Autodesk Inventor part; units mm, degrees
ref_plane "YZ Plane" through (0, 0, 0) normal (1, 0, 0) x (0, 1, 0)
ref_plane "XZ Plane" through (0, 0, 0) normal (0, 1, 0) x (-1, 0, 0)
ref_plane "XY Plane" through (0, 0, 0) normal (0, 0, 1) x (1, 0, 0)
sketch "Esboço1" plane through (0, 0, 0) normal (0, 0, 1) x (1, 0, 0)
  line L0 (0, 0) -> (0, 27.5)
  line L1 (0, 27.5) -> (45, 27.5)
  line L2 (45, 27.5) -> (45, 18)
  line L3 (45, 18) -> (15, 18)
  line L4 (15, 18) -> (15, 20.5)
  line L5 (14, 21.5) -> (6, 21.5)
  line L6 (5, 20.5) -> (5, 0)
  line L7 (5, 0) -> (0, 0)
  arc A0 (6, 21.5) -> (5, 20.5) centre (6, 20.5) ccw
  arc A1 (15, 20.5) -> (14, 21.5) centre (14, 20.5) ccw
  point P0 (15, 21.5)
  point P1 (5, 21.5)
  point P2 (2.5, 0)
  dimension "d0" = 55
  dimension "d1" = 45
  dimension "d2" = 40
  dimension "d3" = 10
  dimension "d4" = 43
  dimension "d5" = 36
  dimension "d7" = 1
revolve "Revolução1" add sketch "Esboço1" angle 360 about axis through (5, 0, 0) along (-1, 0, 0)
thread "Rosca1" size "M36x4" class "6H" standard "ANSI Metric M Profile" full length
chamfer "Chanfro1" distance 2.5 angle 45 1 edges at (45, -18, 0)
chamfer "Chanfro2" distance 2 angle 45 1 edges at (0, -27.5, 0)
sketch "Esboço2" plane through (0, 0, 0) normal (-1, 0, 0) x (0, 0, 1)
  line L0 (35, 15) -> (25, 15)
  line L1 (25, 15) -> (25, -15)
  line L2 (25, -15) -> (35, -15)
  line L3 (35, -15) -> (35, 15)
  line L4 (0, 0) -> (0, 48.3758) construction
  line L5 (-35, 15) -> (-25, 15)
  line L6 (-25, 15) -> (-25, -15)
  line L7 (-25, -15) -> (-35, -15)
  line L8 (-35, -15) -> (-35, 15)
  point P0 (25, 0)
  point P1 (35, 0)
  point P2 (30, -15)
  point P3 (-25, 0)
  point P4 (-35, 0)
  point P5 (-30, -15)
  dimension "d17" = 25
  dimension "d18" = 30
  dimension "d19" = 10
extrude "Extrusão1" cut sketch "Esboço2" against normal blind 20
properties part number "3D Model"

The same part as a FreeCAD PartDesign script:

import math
import FreeCAD as App
import Part
import Sketcher
Q = App.Units.Quantity


def edges_at(feature, points):
    """Names of the edges that pass closest to the given points."""
    edges = feature.Shape.Edges
    near = lambda p: min(range(len(edges)), key=lambda i: edges[i].distToShape(Part.Vertex(*p))[0])
    return sorted({f"Edge{near(p) + 1}" for p in points})

doc = App.newDocument("Part")
body = doc.addObject("PartDesign::Body", "Body")

# Sketch on XY plane
sketch1 = doc.addObject("Sketcher::SketchObject", "Sketch")
body.addObject(sketch1)
sketch1.AttachmentSupport = (doc.XY_Plane, [""])
sketch1.MapMode = "FlatFace"
sketch1.addGeometry(Part.LineSegment(App.Vector(0, 27.5, 0), App.Vector(0, 0, 0)), False)
sketch1.addGeometry(Part.LineSegment(App.Vector(0, 0, 0), App.Vector(5, 0, 0)), False)
sketch1.addGeometry(Part.LineSegment(App.Vector(5, 0, 0), App.Vector(5, 20.5, 0)), False)
sketch1.addGeometry(Part.ArcOfCircle(Part.Circle(App.Vector(6, 20.5, 0), App.Vector(0, 0, 1), 1), math.radians(90), math.radians(180)), False)
sketch1.addGeometry(Part.LineSegment(App.Vector(6, 21.5, 0), App.Vector(14, 21.5, 0)), False)
sketch1.addGeometry(Part.ArcOfCircle(Part.Circle(App.Vector(14, 20.5, 0), App.Vector(0, 0, 1), 1), math.radians(0), math.radians(90)), False)
sketch1.addGeometry(Part.LineSegment(App.Vector(15, 20.5, 0), App.Vector(15, 18, 0)), False)
sketch1.addGeometry(Part.LineSegment(App.Vector(15, 18, 0), App.Vector(45, 18, 0)), False)
sketch1.addGeometry(Part.LineSegment(App.Vector(45, 18, 0), App.Vector(45, 27.5, 0)), False)
sketch1.addGeometry(Part.LineSegment(App.Vector(45, 27.5, 0), App.Vector(0, 27.5, 0)), False)
sketch1.addConstraint(Sketcher.Constraint("Coincident", 0, 2, 1, 1))
sketch1.addConstraint(Sketcher.Constraint("Coincident", 1, 2, 2, 1))
sketch1.addConstraint(Sketcher.Constraint("Tangent", 2, 2, 3, 2))
sketch1.addConstraint(Sketcher.Constraint("Tangent", 3, 1, 4, 1))
sketch1.addConstraint(Sketcher.Constraint("Tangent", 4, 2, 5, 2))
sketch1.addConstraint(Sketcher.Constraint("Tangent", 5, 1, 6, 1))
sketch1.addConstraint(Sketcher.Constraint("Coincident", 6, 2, 7, 1))
sketch1.addConstraint(Sketcher.Constraint("Coincident", 7, 2, 8, 1))
sketch1.addConstraint(Sketcher.Constraint("Coincident", 8, 2, 9, 1))
sketch1.addConstraint(Sketcher.Constraint("Coincident", 9, 2, 0, 1))
sketch1.addConstraint(Sketcher.Constraint("Vertical", 0))
sketch1.addConstraint(Sketcher.Constraint("Horizontal", 1))
sketch1.addConstraint(Sketcher.Constraint("Vertical", 2))
sketch1.addConstraint(Sketcher.Constraint("Horizontal", 4))
sketch1.addConstraint(Sketcher.Constraint("Vertical", 6))
sketch1.addConstraint(Sketcher.Constraint("Horizontal", 7))
sketch1.addConstraint(Sketcher.Constraint("Vertical", 8))
sketch1.addConstraint(Sketcher.Constraint("Horizontal", 9))
sketch1.addConstraint(Sketcher.Constraint("Coincident", 0, 2, -1, 1))
sketch1.addConstraint(Sketcher.Constraint("Equal", 3, 5))
sketch1.addConstraint(Sketcher.Constraint("Radius", 3, Q("1 mm")))
sketch1.addConstraint(Sketcher.Constraint("DistanceX", 9, 2, 9, 1, Q("45 mm")))
sketch1.addConstraint(Sketcher.Constraint("DistanceX", 2, 2, 5, 1, Q("10 mm")))
sketch1.addConstraint(Sketcher.Constraint("DistanceX", 1, 1, 1, 2, Q("5 mm")))
sketch1.addConstraint(Sketcher.Constraint("DistanceY", 0, 2, 0, 1, Q("27.5 mm")))
sketch1.addConstraint(Sketcher.Constraint("DistanceY", 2, 1, 2, 2, Q("20.5 mm")))
sketch1.addConstraint(Sketcher.Constraint("DistanceY", 6, 2, 6, 1, Q("2.5 mm")))
revolution = doc.addObject("PartDesign::Revolution", "Revolution")
body.addObject(revolution)
revolution.Profile = sketch1
revolution.ReferenceAxis = (sketch1, ["H_Axis"])
revolution.Angle = 360
doc.recompute()

chamfer = doc.addObject("PartDesign::Chamfer", "Chamfer")
body.addObject(chamfer)
chamfer.Base = (revolution, edges_at(revolution, [(45, -18, 0)]))
chamfer.Size = 2.5
doc.recompute()

chamfer2 = doc.addObject("PartDesign::Chamfer", "Chamfer001")
body.addObject(chamfer2)
chamfer2.Base = (chamfer, edges_at(chamfer, [(0, -27.5, 0)]))
chamfer2.Size = 2

# Sketch on YZ plane
sketch2 = doc.addObject("Sketcher::SketchObject", "Sketch001")
body.addObject(sketch2)
sketch2.AttachmentSupport = (doc.YZ_Plane, [""])
sketch2.MapMode = "FlatFace"
sketch2.addGeometry(Part.LineSegment(App.Vector(-15, 35, 0), App.Vector(15, 35, 0)), False)
sketch2.addGeometry(Part.LineSegment(App.Vector(15, 35, 0), App.Vector(15, 25, 0)), False)
sketch2.addGeometry(Part.LineSegment(App.Vector(15, 25, 0), App.Vector(-15, 25, 0)), False)
sketch2.addGeometry(Part.LineSegment(App.Vector(-15, 25, 0), App.Vector(-15, 35, 0)), False)
sketch2.addGeometry(Part.LineSegment(App.Vector(15, -25, 0), App.Vector(15, -35, 0)), False)
sketch2.addGeometry(Part.LineSegment(App.Vector(15, -35, 0), App.Vector(-15, -35, 0)), False)
sketch2.addGeometry(Part.LineSegment(App.Vector(-15, -35, 0), App.Vector(-15, -25, 0)), False)
sketch2.addGeometry(Part.LineSegment(App.Vector(-15, -25, 0), App.Vector(15, -25, 0)), False)
sketch2.addConstraint(Sketcher.Constraint("Coincident", 0, 2, 1, 1))
sketch2.addConstraint(Sketcher.Constraint("Coincident", 1, 2, 2, 1))
sketch2.addConstraint(Sketcher.Constraint("Coincident", 2, 2, 3, 1))
sketch2.addConstraint(Sketcher.Constraint("Coincident", 3, 2, 0, 1))
sketch2.addConstraint(Sketcher.Constraint("Coincident", 4, 2, 5, 1))
sketch2.addConstraint(Sketcher.Constraint("Coincident", 5, 2, 6, 1))
sketch2.addConstraint(Sketcher.Constraint("Coincident", 6, 2, 7, 1))
sketch2.addConstraint(Sketcher.Constraint("Coincident", 7, 2, 4, 1))
sketch2.addConstraint(Sketcher.Constraint("Horizontal", 0))
sketch2.addConstraint(Sketcher.Constraint("Vertical", 1))
sketch2.addConstraint(Sketcher.Constraint("Horizontal", 2))
sketch2.addConstraint(Sketcher.Constraint("Vertical", 3))
sketch2.addConstraint(Sketcher.Constraint("Vertical", 4))
sketch2.addConstraint(Sketcher.Constraint("Horizontal", 5))
sketch2.addConstraint(Sketcher.Constraint("Vertical", 6))
sketch2.addConstraint(Sketcher.Constraint("Horizontal", 7))
sketch2.addConstraint(Sketcher.Constraint("Symmetric", 3, 2, 4, 2, -1, 1))
sketch2.addConstraint(Sketcher.Constraint("Symmetric", 1, 2, 6, 2, -1, 1))
sketch2.addConstraint(Sketcher.Constraint("Vertical", 1, 2, 4, 2))
sketch2.addConstraint(Sketcher.Constraint("DistanceX", 0, 1, 0, 2, Q("30 mm")))
sketch2.addConstraint(Sketcher.Constraint("DistanceY", 1, 2, 1, 1, Q("10 mm")))
sketch2.addConstraint(Sketcher.Constraint("DistanceY", -1, 1, 1, 2, Q("25 mm")))
pocket1 = doc.addObject("PartDesign::Pocket", "Pocket")
body.addObject(pocket1)
pocket1.Profile = sketch2
pocket1.Length = 20
pocket1.Reversed = True

doc.recompute()
